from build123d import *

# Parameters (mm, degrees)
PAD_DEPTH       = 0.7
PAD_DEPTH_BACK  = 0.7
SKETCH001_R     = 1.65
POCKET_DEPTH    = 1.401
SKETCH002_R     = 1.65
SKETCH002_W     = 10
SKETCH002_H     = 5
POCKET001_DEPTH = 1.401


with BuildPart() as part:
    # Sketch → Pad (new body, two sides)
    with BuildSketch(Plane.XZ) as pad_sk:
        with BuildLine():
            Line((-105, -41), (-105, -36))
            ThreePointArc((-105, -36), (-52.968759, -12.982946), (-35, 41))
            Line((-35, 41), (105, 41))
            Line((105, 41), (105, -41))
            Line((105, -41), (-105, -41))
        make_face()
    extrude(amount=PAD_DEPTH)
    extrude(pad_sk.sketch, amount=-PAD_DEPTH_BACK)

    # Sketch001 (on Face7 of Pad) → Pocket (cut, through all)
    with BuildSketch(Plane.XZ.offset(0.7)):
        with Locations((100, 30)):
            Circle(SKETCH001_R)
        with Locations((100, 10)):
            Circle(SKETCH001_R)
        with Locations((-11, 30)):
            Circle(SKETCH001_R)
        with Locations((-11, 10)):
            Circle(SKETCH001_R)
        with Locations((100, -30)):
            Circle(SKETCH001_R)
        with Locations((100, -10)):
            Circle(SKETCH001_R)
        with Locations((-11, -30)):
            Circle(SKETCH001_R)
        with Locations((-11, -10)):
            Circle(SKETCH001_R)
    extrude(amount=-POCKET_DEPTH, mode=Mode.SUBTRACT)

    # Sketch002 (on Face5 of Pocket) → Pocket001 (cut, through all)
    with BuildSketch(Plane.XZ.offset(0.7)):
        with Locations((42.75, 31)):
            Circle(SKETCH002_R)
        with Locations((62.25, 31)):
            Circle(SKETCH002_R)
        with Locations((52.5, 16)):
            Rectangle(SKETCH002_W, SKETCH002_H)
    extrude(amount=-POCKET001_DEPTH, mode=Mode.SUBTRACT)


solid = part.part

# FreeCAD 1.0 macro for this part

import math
import FreeCAD as App
import Part
import Sketcher
Q = App.Units.Quantity


def add_polygon(sketch, points):
    """Adds a closed chain of lines whose ends are joined by coincident constraints."""
    first, n = sketch.GeometryCount, len(points)
    for a, b in zip(points, points[1:] + points[:1]):
        sketch.addGeometry(Part.LineSegment(App.Vector(*a, 0), App.Vector(*b, 0)), False)
    for i in range(n):
        sketch.addConstraint(Sketcher.Constraint("Coincident", first + i, 2, first + (i + 1) % n, 1))

doc = App.newDocument("Part")
params = doc.addObject("Spreadsheet::Sheet", "Params")
for row, (alias, value) in enumerate([
    ("sketch1_width", "210 mm"),
    ("sketch1_width2", "140 mm"),
    ("sketch1_height", "5 mm"),
    ("sketch1_height2", "82 mm"),
    ("pad1_length", "0.7 mm"),
    ("pad1_length2", "0.7 mm"),
    ("sketch2_diameter", "3.3 mm"),
    ("sketch3_diameter", "3.3 mm"),
    ("sketch3_width", "10 mm"),
    ("sketch3_height", "5 mm"),
], start=1):
    params.set(f"A{row}", alias)
    params.set(f"B{row}", "=" + value)
    params.setAlias(f"B{row}", alias)

body = doc.addObject("PartDesign::Body", "Body")

sketch1 = body.newObject("Sketcher::SketchObject", "Sketch")
sketch1.AttachmentSupport = (doc.getObject("XZ_Plane"), [""])
sketch1.MapMode = "FlatFace"
sketch1.addGeometry(Part.LineSegment(App.Vector(-105, -36, 0), App.Vector(-105, -41, 0)), False)
sketch1.addGeometry(Part.LineSegment(App.Vector(-105, -41, 0), App.Vector(105, -41, 0)), False)
sketch1.addGeometry(Part.LineSegment(App.Vector(105, -41, 0), App.Vector(105, 41, 0)), False)
sketch1.addGeometry(Part.LineSegment(App.Vector(105, 41, 0), App.Vector(-35, 41, 0)), False)
sketch1.addGeometry(Part.ArcOfCircle(Part.Circle(App.Vector(-105, 34, 0), App.Vector(0, 0, 1), 70), math.radians(-90), math.radians(5)), False)
sketch1.addConstraint(Sketcher.Constraint("Coincident", 0, 2, 1, 1))
sketch1.addConstraint(Sketcher.Constraint("Coincident", 1, 2, 2, 1))
sketch1.addConstraint(Sketcher.Constraint("Coincident", 2, 2, 3, 1))
sketch1.addConstraint(Sketcher.Constraint("Coincident", 3, 2, 4, 2))
sketch1.addConstraint(Sketcher.Constraint("Coincident", 4, 1, 0, 1))
sketch1.addConstraint(Sketcher.Constraint("Vertical", 0))
sketch1.addConstraint(Sketcher.Constraint("Horizontal", 1))
sketch1.addConstraint(Sketcher.Constraint("Vertical", 2))
sketch1.addConstraint(Sketcher.Constraint("Horizontal", 3))
sketch1.addConstraint(Sketcher.Constraint("Symmetric", 0, 2, 2, 2, -1, 1))
sketch1.addConstraint(Sketcher.Constraint("Vertical", 4, 3, 0, 2))
sketch1.addConstraint(Sketcher.Constraint("DistanceX", 1, 1, 1, 2, Q("210 mm")))
sketch1.addConstraint(Sketcher.Constraint("DistanceX", 3, 2, 3, 1, Q("140 mm")))
sketch1.addConstraint(Sketcher.Constraint("DistanceY", 0, 2, 0, 1, Q("5 mm")))
sketch1.addConstraint(Sketcher.Constraint("DistanceY", 2, 1, 2, 2, Q("82 mm")))
sketch1.setExpression("Constraints[11]", "Params.sketch1_width")
sketch1.setExpression("Constraints[12]", "Params.sketch1_width2")
sketch1.setExpression("Constraints[13]", "Params.sketch1_height")
sketch1.setExpression("Constraints[14]", "Params.sketch1_height2")
pad1 = body.newObject("PartDesign::Pad", "Pad")
pad1.Profile = sketch1
pad1.Type = "TwoLengths"
pad1.setExpression("Length", "Params.pad1_length")
pad1.setExpression("Length2", "Params.pad1_length2")

sketch2 = body.newObject("Sketcher::SketchObject", "Sketch001")
sketch2.AttachmentSupport = (doc.getObject("XZ_Plane"), [""])
sketch2.MapMode = "FlatFace"
sketch2.AttachmentOffset = App.Placement(App.Vector(0, 0, 0.7), App.Rotation())
sketch2.addGeometry(Part.Circle(App.Vector(100, 30, 0), App.Vector(0, 0, 1), 1.6), False)
sketch2.addGeometry(Part.Circle(App.Vector(100, 10, 0), App.Vector(0, 0, 1), 1.6), False)
sketch2.addGeometry(Part.Circle(App.Vector(-11, 30, 0), App.Vector(0, 0, 1), 1.6), False)
sketch2.addGeometry(Part.Circle(App.Vector(-11, 10, 0), App.Vector(0, 0, 1), 1.6), False)
sketch2.addGeometry(Part.Circle(App.Vector(100, -30, 0), App.Vector(0, 0, 1), 1.6), False)
sketch2.addGeometry(Part.Circle(App.Vector(100, -10, 0), App.Vector(0, 0, 1), 1.6), False)
sketch2.addGeometry(Part.Circle(App.Vector(-11, -30, 0), App.Vector(0, 0, 1), 1.6), False)
sketch2.addGeometry(Part.Circle(App.Vector(-11, -10, 0), App.Vector(0, 0, 1), 1.6), False)
sketch2.addConstraint(Sketcher.Constraint("Equal", 0, 1))
sketch2.addConstraint(Sketcher.Constraint("Equal", 1, 2))
sketch2.addConstraint(Sketcher.Constraint("Equal", 2, 3))
sketch2.addConstraint(Sketcher.Constraint("Equal", 3, 4))
sketch2.addConstraint(Sketcher.Constraint("Equal", 4, 5))
sketch2.addConstraint(Sketcher.Constraint("Equal", 5, 6))
sketch2.addConstraint(Sketcher.Constraint("Equal", 6, 7))
sketch2.addConstraint(Sketcher.Constraint("Symmetric", 0, 3, 4, 3, -1))
sketch2.addConstraint(Sketcher.Constraint("Symmetric", 1, 3, 5, 3, -1))
sketch2.addConstraint(Sketcher.Constraint("Symmetric", 2, 3, 6, 3, -1))
sketch2.addConstraint(Sketcher.Constraint("Symmetric", 3, 3, 7, 3, -1))
sketch2.addConstraint(Sketcher.Constraint("Horizontal", 0, 3, 2, 3))
sketch2.addConstraint(Sketcher.Constraint("Horizontal", 1, 3, 3, 3))
sketch2.addConstraint(Sketcher.Constraint("Vertical", 0, 3, 1, 3))
sketch2.addConstraint(Sketcher.Constraint("Vertical", 2, 3, 3, 3))
sketch2.addConstraint(Sketcher.Constraint("Diameter", 0, Q("3.3 mm")))
sketch2.addConstraint(Sketcher.Constraint("DistanceX", -1, 1, 0, 3, Q("100 mm")))
sketch2.addConstraint(Sketcher.Constraint("DistanceY", -1, 1, 0, 3, Q("30 mm")))
sketch2.addConstraint(Sketcher.Constraint("DistanceY", -1, 1, 1, 3, Q("10 mm")))
sketch2.addConstraint(Sketcher.Constraint("DistanceX", 2, 3, -1, 1, Q("11 mm")))
sketch2.setExpression("Constraints[15]", "Params.sketch2_diameter")
pocket1 = body.newObject("PartDesign::Pocket", "Pocket")
pocket1.Profile = sketch2
pocket1.Type = "ThroughAll"

sketch3 = body.newObject("Sketcher::SketchObject", "Sketch002")
sketch3.AttachmentSupport = (doc.getObject("XZ_Plane"), [""])
sketch3.MapMode = "FlatFace"
sketch3.AttachmentOffset = App.Placement(App.Vector(0, 0, 0.7), App.Rotation())
sketch3.addGeometry(Part.Circle(App.Vector(42.8, 31, 0), App.Vector(0, 0, 1), 1.6), False)
sketch3.addGeometry(Part.Circle(App.Vector(62.2, 31, 0), App.Vector(0, 0, 1), 1.6), False)
add_polygon(sketch3, [(47.5, 18.5), (47.5, 13.5), (57.5, 13.5), (57.5, 18.5)])
sketch3.addConstraint(Sketcher.Constraint("Vertical", 2))
sketch3.addConstraint(Sketcher.Constraint("Horizontal", 3))
sketch3.addConstraint(Sketcher.Constraint("Vertical", 4))
sketch3.addConstraint(Sketcher.Constraint("Horizontal", 5))
sketch3.addConstraint(Sketcher.Constraint("Equal", 0, 1))
sketch3.addConstraint(Sketcher.Constraint("Horizontal", 0, 3, 1, 3))
sketch3.addConstraint(Sketcher.Constraint("Diameter", 0, Q("3.3 mm")))
sketch3.addConstraint(Sketcher.Constraint("DistanceX", 3, 1, 3, 2, Q("10 mm")))
sketch3.addConstraint(Sketcher.Constraint("DistanceY", 2, 2, 2, 1, Q("5 mm")))
sketch3.addConstraint(Sketcher.Constraint("DistanceY", -1, 1, 0, 3, Q("31 mm")))
sketch3.addConstraint(Sketcher.Constraint("DistanceX", -1, 1, 2, 2, Q("47.5 mm")))
sketch3.addConstraint(Sketcher.Constraint("DistanceY", -1, 1, 2, 2, Q("13.5 mm")))
sketch3.addConstraint(Sketcher.Constraint("DistanceX", 0, 3, 1, 3, Q("19.5 mm")))
sketch3.addConstraint(Sketcher.Constraint("DistanceX", -1, 1, 0, 3, Q("42.75 mm")))
sketch3.setExpression("Constraints[10]", "Params.sketch3_diameter")
sketch3.setExpression("Constraints[11]", "Params.sketch3_width")
sketch3.setExpression("Constraints[12]", "Params.sketch3_height")
pocket2 = body.newObject("PartDesign::Pocket", "Pocket001")
pocket2.Profile = sketch3
pocket2.Type = "ThroughAll"

doc.recompute()
